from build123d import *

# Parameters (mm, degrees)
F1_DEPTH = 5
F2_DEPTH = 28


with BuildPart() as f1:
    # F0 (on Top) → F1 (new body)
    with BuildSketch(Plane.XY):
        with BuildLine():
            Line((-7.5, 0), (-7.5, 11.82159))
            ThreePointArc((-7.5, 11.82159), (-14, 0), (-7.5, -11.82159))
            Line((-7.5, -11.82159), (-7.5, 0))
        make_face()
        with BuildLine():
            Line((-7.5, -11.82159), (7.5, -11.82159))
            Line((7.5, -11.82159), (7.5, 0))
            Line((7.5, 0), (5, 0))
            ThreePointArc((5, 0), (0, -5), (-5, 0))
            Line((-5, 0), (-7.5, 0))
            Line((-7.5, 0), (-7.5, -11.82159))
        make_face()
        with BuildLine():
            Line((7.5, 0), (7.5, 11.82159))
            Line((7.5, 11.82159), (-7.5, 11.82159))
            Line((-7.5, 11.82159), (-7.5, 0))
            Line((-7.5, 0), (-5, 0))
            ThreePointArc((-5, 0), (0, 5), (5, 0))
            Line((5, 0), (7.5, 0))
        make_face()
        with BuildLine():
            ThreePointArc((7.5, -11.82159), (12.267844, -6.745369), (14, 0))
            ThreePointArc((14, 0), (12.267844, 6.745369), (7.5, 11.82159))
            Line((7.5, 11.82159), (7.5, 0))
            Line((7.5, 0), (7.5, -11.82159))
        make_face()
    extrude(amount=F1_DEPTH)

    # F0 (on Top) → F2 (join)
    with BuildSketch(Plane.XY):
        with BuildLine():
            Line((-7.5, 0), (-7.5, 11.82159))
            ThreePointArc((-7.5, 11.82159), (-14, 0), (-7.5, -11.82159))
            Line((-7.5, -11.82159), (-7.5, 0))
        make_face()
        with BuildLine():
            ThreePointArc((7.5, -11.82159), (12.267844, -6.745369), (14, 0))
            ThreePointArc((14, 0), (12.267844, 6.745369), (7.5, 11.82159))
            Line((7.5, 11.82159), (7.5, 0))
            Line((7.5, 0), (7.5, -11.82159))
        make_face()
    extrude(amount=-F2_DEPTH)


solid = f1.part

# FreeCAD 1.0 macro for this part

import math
import FreeCAD as App
import Part
import Sketcher
from FreeCAD import Vector
Q = App.Units.Quantity

doc = App.newDocument("Part")
body = doc.addObject("PartDesign::Body", "Body")

sketch1 = body.newObject("Sketcher::SketchObject", "Sketch")
sketch1.AttachmentSupport = (doc.getObject("XY_Plane"), [""])
sketch1.MapMode = "FlatFace"
sketch1.addGeometry([
    Part.ArcOfCircle(Part.Circle(Vector(0, 0, 0), Vector(0, 0, 1), 14), math.radians(122), math.radians(238)),
    Part.LineSegment(Vector(-8, -12, 0), Vector(8, -12, 0)),
    Part.ArcOfCircle(Part.Circle(Vector(0, 0, 0), Vector(0, 0, 1), 14), math.radians(-58), math.radians(0)),
    Part.ArcOfCircle(Part.Circle(Vector(0, 0, 0), Vector(0, 0, 1), 14), math.radians(0), math.radians(58)),
    Part.LineSegment(Vector(8, 12, 0), Vector(-8, 12, 0)),
    Part.Circle(Vector(0, 0, 0), Vector(0, 0, 1), 5),
], False)
sketch1.addConstraint([
    Sketcher.Constraint("Coincident", 0, 2, 1, 1),
    Sketcher.Constraint("Coincident", 1, 2, 2, 1),
    Sketcher.Constraint("Tangent", 2, 2, 3, 1),
    Sketcher.Constraint("Coincident", 3, 2, 4, 1),
    Sketcher.Constraint("Coincident", 4, 2, 0, 1),
    Sketcher.Constraint("Horizontal", 1),
    Sketcher.Constraint("Horizontal", 4),
    Sketcher.Constraint("Coincident", 0, 3, -1, 1),
    Sketcher.Constraint("Coincident", 2, 3, -1, 1),
    Sketcher.Constraint("Coincident", 5, 3, -1, 1),
    Sketcher.Constraint("Equal", 0, 2),
    Sketcher.Constraint("Equal", 2, 3),
    Sketcher.Constraint("PointOnObject", 2, 2, -1),
    Sketcher.Constraint("Vertical", 1, 2, 3, 2),
    Sketcher.Constraint("Diameter", 5, Q("10 mm")),
    Sketcher.Constraint("Radius", 0, Q("13.999999 mm")),
    Sketcher.Constraint("DistanceX", 1, 1, 1, 2, Q("15 mm")),
])
pad1 = body.newObject("PartDesign::Pad", "Pad")
pad1.Profile = sketch1
pad1.Length = 5

sketch2 = body.newObject("Sketcher::SketchObject", "Sketch001")
sketch2.AttachmentSupport = (doc.getObject("XY_Plane"), [""])
sketch2.MapMode = "FlatFace"
sketch2.addGeometry([
    Part.ArcOfCircle(Part.Circle(Vector(0, 0, 0), Vector(0, 0, 1), 14), math.radians(122), math.radians(238)),
    Part.LineSegment(Vector(-8, -12, 0), Vector(-8, 12, 0)),
    Part.ArcOfCircle(Part.Circle(Vector(0, 0, 0), Vector(0, 0, 1), 14), math.radians(-58), math.radians(0)),
    Part.ArcOfCircle(Part.Circle(Vector(0, 0, 0), Vector(0, 0, 1), 14), math.radians(0), math.radians(58)),
    Part.LineSegment(Vector(8, 12, 0), Vector(8, -12, 0)),
], False)
sketch2.addConstraint([
    Sketcher.Constraint("Coincident", 0, 1, 1, 2),
    Sketcher.Constraint("Coincident", 1, 1, 0, 2),
    Sketcher.Constraint("Tangent", 2, 2, 3, 1),
    Sketcher.Constraint("Coincident", 3, 2, 4, 1),
    Sketcher.Constraint("Coincident", 4, 2, 2, 1),
    Sketcher.Constraint("Vertical", 1),
    Sketcher.Constraint("Vertical", 4),
    Sketcher.Constraint("Coincident", 0, 3, -1, 1),
    Sketcher.Constraint("Coincident", 2, 3, -1, 1),
    Sketcher.Constraint("Equal", 0, 2),
    Sketcher.Constraint("Equal", 2, 3),
    Sketcher.Constraint("PointOnObject", 2, 2, -1),
    Sketcher.Constraint("Horizontal", 0, 1, 3, 2),
    Sketcher.Constraint("Radius", 0, Q("13.999999 mm")),
    Sketcher.Constraint("DistanceX", 0, 1, 3, 2, Q("15 mm")),
])
pad2 = body.newObject("PartDesign::Pad", "Pad001")
pad2.Profile = sketch2
pad2.Length = 28
pad2.Reversed = True

doc.recompute()
